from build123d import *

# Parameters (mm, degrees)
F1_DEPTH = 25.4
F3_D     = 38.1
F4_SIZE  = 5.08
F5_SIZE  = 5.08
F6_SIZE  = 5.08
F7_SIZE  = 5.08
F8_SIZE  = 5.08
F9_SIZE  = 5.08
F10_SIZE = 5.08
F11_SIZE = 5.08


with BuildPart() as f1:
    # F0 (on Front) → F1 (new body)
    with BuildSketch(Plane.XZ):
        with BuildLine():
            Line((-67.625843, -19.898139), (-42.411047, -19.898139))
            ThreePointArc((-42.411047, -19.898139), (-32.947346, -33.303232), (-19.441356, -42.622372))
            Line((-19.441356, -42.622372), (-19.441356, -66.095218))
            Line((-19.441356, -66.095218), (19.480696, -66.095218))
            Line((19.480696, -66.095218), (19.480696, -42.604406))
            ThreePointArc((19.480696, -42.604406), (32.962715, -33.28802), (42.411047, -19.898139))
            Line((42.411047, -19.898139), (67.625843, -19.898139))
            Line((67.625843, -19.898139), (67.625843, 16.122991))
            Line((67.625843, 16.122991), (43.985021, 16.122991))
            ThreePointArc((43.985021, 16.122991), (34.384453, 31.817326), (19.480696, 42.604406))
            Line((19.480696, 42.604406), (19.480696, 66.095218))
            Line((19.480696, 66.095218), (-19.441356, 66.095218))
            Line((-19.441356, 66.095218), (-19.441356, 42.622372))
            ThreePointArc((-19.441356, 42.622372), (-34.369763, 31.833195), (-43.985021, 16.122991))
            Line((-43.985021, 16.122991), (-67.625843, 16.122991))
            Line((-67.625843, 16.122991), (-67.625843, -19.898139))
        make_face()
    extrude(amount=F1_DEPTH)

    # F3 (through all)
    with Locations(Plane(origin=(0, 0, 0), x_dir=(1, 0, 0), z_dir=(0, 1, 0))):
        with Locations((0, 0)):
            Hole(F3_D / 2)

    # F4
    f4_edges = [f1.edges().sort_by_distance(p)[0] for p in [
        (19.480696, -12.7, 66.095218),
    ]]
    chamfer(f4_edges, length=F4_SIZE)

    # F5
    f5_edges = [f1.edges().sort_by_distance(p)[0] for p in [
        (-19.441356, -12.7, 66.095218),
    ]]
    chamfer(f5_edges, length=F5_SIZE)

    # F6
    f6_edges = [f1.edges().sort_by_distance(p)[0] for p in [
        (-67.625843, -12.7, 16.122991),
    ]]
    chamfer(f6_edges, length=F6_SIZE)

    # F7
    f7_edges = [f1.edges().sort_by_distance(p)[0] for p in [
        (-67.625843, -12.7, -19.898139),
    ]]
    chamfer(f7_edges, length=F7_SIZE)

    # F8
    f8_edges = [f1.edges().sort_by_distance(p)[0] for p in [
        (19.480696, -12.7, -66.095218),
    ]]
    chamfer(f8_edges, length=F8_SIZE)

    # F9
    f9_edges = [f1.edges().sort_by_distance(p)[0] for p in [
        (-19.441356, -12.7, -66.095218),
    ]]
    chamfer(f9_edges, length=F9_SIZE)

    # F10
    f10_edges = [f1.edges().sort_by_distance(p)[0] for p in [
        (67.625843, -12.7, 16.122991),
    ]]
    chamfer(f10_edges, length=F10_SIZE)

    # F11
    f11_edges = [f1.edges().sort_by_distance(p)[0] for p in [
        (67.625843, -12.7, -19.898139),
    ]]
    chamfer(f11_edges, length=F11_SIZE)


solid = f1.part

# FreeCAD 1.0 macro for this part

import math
import FreeCAD as App
import Part
import Sketcher
from FreeCAD import Vector
Q = App.Units.Quantity


def edges_at(feature, points):
    """Names of the edges that pass closest to the given points."""
    edges = feature.Shape.Edges
    near = lambda p: min(range(len(edges)), key=lambda i: edges[i].distToShape(Part.Vertex(*p))[0])
    return sorted({f"Edge{near(p) + 1}" for p in points})

doc = App.newDocument("Part")
params = doc.addObject("Spreadsheet::Sheet", "Params")
for row, (alias, value) in enumerate([
    ("pad1_length", "1 in"),
    ("sketch2_diameter", "1.5 in"),
    ("hole_diameter", "1.5 in"),
    ("chamfer_size", "0.2 in"),
    ("chamfer2_size", "0.2 in"),
    ("chamfer3_size", "0.2 in"),
    ("chamfer4_size", "0.2 in"),
    ("chamfer5_size", "0.2 in"),
    ("chamfer6_size", "0.2 in"),
    ("chamfer7_size", "0.2 in"),
    ("chamfer8_size", "0.2 in"),
], start=1):
    params.set(f"A{row}", alias)
    params.set(f"B{row}", "=" + value)
    params.setAlias(f"B{row}", alias)

body = doc.addObject("PartDesign::Body", "Body")

# Sketch on XZ plane
sketch1 = doc.addObject("Sketcher::SketchObject", "Sketch")
body.addObject(sketch1)
sketch1.AttachmentSupport = (doc.XZ_Plane, [""])
sketch1.MapMode = "FlatFace"
sketch1.addGeometry([
    Part.LineSegment(Vector(-67.625843, -19.898139, 0), Vector(-42.411047, -19.898139, 0)),  # 0
    Part.ArcOfCircle(Part.Circle(Vector(0.000002, 0, 0), Vector(0, 0, 1), 46.846911), math.radians(-154.865276), math.radians(-114.519169)),  # 1
    Part.LineSegment(Vector(-19.441356, -42.622372, 0), Vector(-19.441356, -66.095218, 0)),  # 2
    Part.LineSegment(Vector(-19.441356, -66.095218, 0), Vector(19.480696, -66.095218, 0)),  # 3
    Part.LineSegment(Vector(19.480696, -66.095218, 0), Vector(19.480696, -42.604406, 0)),  # 4
    Part.ArcOfCircle(Part.Circle(Vector(-0.000005, 0.000003, 0), Vector(0, 0, 1), 46.846914), math.radians(-65.427935), math.radians(-25.134726)),  # 5
    Part.LineSegment(Vector(42.411047, -19.898139, 0), Vector(67.625843, -19.898139, 0)),  # 6
    Part.LineSegment(Vector(67.625843, -19.898139, 0), Vector(67.625843, 16.122991, 0)),  # 7
    Part.LineSegment(Vector(67.625843, 16.122991, 0), Vector(43.985021, 16.122991, 0)),  # 8
    Part.ArcOfCircle(Part.Circle(Vector(-0.000008, -0.000007, 0), Vector(0, 0, 1), 46.846919), math.radians(20.130739), math.radians(65.427933)),  # 9
    Part.LineSegment(Vector(19.480696, 42.604406, 0), Vector(19.480696, 66.095218, 0)),  # 10
    Part.LineSegment(Vector(19.480696, 66.095218, 0), Vector(-19.441356, 66.095218, 0)),  # 11
    Part.LineSegment(Vector(-19.441356, 66.095218, 0), Vector(-19.441356, 42.622372, 0)),  # 12
    Part.ArcOfCircle(Part.Circle(Vector(0, 0, 0), Vector(0, 0, 1), 46.84691), math.radians(114.519167), math.radians(159.869266)),  # 13
    Part.LineSegment(Vector(-43.985021, 16.122991, 0), Vector(-67.625843, 16.122991, 0)),  # 14
    Part.LineSegment(Vector(-67.625843, 16.122991, 0), Vector(-67.625843, -19.898139, 0)),  # 15
], False)
sketch1.addConstraint([
    Sketcher.Constraint("Coincident", 0, 2, 1, 1),
    Sketcher.Constraint("Coincident", 1, 2, 2, 1),
    Sketcher.Constraint("Coincident", 2, 2, 3, 1),
    Sketcher.Constraint("Coincident", 3, 2, 4, 1),
    Sketcher.Constraint("Coincident", 4, 2, 5, 1),
    Sketcher.Constraint("Coincident", 5, 2, 6, 1),
    Sketcher.Constraint("Coincident", 6, 2, 7, 1),
    Sketcher.Constraint("Coincident", 7, 2, 8, 1),
    Sketcher.Constraint("Coincident", 8, 2, 9, 1),
    Sketcher.Constraint("Coincident", 9, 2, 10, 1),
    Sketcher.Constraint("Coincident", 10, 2, 11, 1),
    Sketcher.Constraint("Coincident", 11, 2, 12, 1),
    Sketcher.Constraint("Coincident", 12, 2, 13, 1),
    Sketcher.Constraint("Coincident", 13, 2, 14, 1),
    Sketcher.Constraint("Coincident", 14, 2, 15, 1),
    Sketcher.Constraint("Coincident", 15, 2, 0, 1),
    Sketcher.Constraint("Horizontal", 0),
    Sketcher.Constraint("Vertical", 2),
    Sketcher.Constraint("Horizontal", 3),
    Sketcher.Constraint("Vertical", 4),
    Sketcher.Constraint("Horizontal", 6),
    Sketcher.Constraint("Vertical", 7),
    Sketcher.Constraint("Horizontal", 8),
    Sketcher.Constraint("Vertical", 10),
    Sketcher.Constraint("Horizontal", 11),
    Sketcher.Constraint("Vertical", 12),
    Sketcher.Constraint("Horizontal", 14),
    Sketcher.Constraint("Vertical", 15),
    Sketcher.Constraint("Coincident", 1, 3, -1, 1),
    Sketcher.Constraint("Coincident", 5, 3, -1, 1),
    Sketcher.Constraint("Coincident", 13, 3, -1, 1),
    Sketcher.Constraint("Radius", 1, 46.846911),
    Sketcher.Constraint("Radius", 9, 46.846919),
    Sketcher.Constraint("Radius", 13, 46.84691),
    Sketcher.Constraint("Radius", 5, 46.846914),
    Sketcher.Constraint("DistanceX", 3, 1, 3, 2, 38.922052),
    Sketcher.Constraint("DistanceX", 8, 2, 8, 1, 23.640822),
    Sketcher.Constraint("DistanceX", 11, 2, 11, 1, 38.922052),
    Sketcher.Constraint("DistanceX", 14, 2, 14, 1, 23.640822),
    Sketcher.Constraint("DistanceY", 7, 1, 7, 2, 36.02113),
    Sketcher.Constraint("DistanceY", 15, 2, 15, 1, 36.02113),
    Sketcher.Constraint("DistanceY", 4, 2, 9, 3, 42.604399),
    Sketcher.Constraint("DistanceX", 5, 3, 9, 2, 19.480701),
    Sketcher.Constraint("DistanceY", 9, 3, 13, 2, 16.122998),
    Sketcher.Constraint("DistanceX", 0, 1, 0, 2, 25.214796),
    Sketcher.Constraint("DistanceX", 6, 1, 6, 2, 25.214796),
    Sketcher.Constraint("DistanceY", 2, 2, 2, 1, 23.472846),
    Sketcher.Constraint("DistanceY", 10, 1, 10, 2, 23.490812),
    Sketcher.Constraint("DistanceY", 12, 2, 12, 1, 23.472846),
])
pad1 = doc.addObject("PartDesign::Pad", "Pad")
body.addObject(pad1)
pad1.Profile = sketch1
pad1.setExpression("Length", "Params.pad1_length")

# Sketch on XZ plane
sketch2 = doc.addObject("Sketcher::SketchObject", "Sketch001")
body.addObject(sketch2)
sketch2.AttachmentSupport = (doc.XZ_Plane, [""])
sketch2.MapMode = "FlatFace"
sketch2.addGeometry(Part.Circle(Vector(0, 0, 0), Vector(0, 0, 1), 19.05), False)
sketch2.addConstraint([
    Sketcher.Constraint("Coincident", 0, 3, -1, 1),
    Sketcher.Constraint("Diameter", 0, Q("1.5 in")),
])
sketch2.setExpression("Constraints[1]", "Params.sketch2_diameter")
doc.recompute()
hole = doc.addObject("PartDesign::Hole", "Hole")
body.addObject(hole)
hole.Profile = sketch2
hole.ThreadType = "None"
hole.setExpression("Diameter", "Params.hole_diameter")
hole.DepthType = "ThroughAll"
hole.Reversed = True
doc.recompute()

chamfer = doc.addObject("PartDesign::Chamfer", "Chamfer")
body.addObject(chamfer)
chamfer.Base = (hole, edges_at(hole, [(19.481, -12.7, 66.095)]))
chamfer.setExpression("Size", "Params.chamfer_size")
doc.recompute()

chamfer2 = doc.addObject("PartDesign::Chamfer", "Chamfer001")
body.addObject(chamfer2)
chamfer2.Base = (chamfer, edges_at(chamfer, [(-19.441, -12.7, 66.095)]))
chamfer2.setExpression("Size", "Params.chamfer2_size")
doc.recompute()

chamfer3 = doc.addObject("PartDesign::Chamfer", "Chamfer002")
body.addObject(chamfer3)
chamfer3.Base = (chamfer2, edges_at(chamfer2, [(-67.626, -12.7, 16.123)]))
chamfer3.setExpression("Size", "Params.chamfer3_size")
doc.recompute()

chamfer4 = doc.addObject("PartDesign::Chamfer", "Chamfer003")
body.addObject(chamfer4)
chamfer4.Base = (chamfer3, edges_at(chamfer3, [(-67.626, -12.7, -19.898)]))
chamfer4.setExpression("Size", "Params.chamfer4_size")
doc.recompute()

chamfer5 = doc.addObject("PartDesign::Chamfer", "Chamfer004")
body.addObject(chamfer5)
chamfer5.Base = (chamfer4, edges_at(chamfer4, [(19.481, -12.7, -66.095)]))
chamfer5.setExpression("Size", "Params.chamfer5_size")
doc.recompute()

chamfer6 = doc.addObject("PartDesign::Chamfer", "Chamfer005")
body.addObject(chamfer6)
chamfer6.Base = (chamfer5, edges_at(chamfer5, [(-19.441, -12.7, -66.095)]))
chamfer6.setExpression("Size", "Params.chamfer6_size")
doc.recompute()

chamfer7 = doc.addObject("PartDesign::Chamfer", "Chamfer006")
body.addObject(chamfer7)
chamfer7.Base = (chamfer6, edges_at(chamfer6, [(67.626, -12.7, 16.123)]))
chamfer7.setExpression("Size", "Params.chamfer7_size")
doc.recompute()

chamfer8 = doc.addObject("PartDesign::Chamfer", "Chamfer007")
body.addObject(chamfer8)
chamfer8.Base = (chamfer7, edges_at(chamfer7, [(67.626, -12.7, -19.898)]))
chamfer8.setExpression("Size", "Params.chamfer8_size")

doc.recompute()
